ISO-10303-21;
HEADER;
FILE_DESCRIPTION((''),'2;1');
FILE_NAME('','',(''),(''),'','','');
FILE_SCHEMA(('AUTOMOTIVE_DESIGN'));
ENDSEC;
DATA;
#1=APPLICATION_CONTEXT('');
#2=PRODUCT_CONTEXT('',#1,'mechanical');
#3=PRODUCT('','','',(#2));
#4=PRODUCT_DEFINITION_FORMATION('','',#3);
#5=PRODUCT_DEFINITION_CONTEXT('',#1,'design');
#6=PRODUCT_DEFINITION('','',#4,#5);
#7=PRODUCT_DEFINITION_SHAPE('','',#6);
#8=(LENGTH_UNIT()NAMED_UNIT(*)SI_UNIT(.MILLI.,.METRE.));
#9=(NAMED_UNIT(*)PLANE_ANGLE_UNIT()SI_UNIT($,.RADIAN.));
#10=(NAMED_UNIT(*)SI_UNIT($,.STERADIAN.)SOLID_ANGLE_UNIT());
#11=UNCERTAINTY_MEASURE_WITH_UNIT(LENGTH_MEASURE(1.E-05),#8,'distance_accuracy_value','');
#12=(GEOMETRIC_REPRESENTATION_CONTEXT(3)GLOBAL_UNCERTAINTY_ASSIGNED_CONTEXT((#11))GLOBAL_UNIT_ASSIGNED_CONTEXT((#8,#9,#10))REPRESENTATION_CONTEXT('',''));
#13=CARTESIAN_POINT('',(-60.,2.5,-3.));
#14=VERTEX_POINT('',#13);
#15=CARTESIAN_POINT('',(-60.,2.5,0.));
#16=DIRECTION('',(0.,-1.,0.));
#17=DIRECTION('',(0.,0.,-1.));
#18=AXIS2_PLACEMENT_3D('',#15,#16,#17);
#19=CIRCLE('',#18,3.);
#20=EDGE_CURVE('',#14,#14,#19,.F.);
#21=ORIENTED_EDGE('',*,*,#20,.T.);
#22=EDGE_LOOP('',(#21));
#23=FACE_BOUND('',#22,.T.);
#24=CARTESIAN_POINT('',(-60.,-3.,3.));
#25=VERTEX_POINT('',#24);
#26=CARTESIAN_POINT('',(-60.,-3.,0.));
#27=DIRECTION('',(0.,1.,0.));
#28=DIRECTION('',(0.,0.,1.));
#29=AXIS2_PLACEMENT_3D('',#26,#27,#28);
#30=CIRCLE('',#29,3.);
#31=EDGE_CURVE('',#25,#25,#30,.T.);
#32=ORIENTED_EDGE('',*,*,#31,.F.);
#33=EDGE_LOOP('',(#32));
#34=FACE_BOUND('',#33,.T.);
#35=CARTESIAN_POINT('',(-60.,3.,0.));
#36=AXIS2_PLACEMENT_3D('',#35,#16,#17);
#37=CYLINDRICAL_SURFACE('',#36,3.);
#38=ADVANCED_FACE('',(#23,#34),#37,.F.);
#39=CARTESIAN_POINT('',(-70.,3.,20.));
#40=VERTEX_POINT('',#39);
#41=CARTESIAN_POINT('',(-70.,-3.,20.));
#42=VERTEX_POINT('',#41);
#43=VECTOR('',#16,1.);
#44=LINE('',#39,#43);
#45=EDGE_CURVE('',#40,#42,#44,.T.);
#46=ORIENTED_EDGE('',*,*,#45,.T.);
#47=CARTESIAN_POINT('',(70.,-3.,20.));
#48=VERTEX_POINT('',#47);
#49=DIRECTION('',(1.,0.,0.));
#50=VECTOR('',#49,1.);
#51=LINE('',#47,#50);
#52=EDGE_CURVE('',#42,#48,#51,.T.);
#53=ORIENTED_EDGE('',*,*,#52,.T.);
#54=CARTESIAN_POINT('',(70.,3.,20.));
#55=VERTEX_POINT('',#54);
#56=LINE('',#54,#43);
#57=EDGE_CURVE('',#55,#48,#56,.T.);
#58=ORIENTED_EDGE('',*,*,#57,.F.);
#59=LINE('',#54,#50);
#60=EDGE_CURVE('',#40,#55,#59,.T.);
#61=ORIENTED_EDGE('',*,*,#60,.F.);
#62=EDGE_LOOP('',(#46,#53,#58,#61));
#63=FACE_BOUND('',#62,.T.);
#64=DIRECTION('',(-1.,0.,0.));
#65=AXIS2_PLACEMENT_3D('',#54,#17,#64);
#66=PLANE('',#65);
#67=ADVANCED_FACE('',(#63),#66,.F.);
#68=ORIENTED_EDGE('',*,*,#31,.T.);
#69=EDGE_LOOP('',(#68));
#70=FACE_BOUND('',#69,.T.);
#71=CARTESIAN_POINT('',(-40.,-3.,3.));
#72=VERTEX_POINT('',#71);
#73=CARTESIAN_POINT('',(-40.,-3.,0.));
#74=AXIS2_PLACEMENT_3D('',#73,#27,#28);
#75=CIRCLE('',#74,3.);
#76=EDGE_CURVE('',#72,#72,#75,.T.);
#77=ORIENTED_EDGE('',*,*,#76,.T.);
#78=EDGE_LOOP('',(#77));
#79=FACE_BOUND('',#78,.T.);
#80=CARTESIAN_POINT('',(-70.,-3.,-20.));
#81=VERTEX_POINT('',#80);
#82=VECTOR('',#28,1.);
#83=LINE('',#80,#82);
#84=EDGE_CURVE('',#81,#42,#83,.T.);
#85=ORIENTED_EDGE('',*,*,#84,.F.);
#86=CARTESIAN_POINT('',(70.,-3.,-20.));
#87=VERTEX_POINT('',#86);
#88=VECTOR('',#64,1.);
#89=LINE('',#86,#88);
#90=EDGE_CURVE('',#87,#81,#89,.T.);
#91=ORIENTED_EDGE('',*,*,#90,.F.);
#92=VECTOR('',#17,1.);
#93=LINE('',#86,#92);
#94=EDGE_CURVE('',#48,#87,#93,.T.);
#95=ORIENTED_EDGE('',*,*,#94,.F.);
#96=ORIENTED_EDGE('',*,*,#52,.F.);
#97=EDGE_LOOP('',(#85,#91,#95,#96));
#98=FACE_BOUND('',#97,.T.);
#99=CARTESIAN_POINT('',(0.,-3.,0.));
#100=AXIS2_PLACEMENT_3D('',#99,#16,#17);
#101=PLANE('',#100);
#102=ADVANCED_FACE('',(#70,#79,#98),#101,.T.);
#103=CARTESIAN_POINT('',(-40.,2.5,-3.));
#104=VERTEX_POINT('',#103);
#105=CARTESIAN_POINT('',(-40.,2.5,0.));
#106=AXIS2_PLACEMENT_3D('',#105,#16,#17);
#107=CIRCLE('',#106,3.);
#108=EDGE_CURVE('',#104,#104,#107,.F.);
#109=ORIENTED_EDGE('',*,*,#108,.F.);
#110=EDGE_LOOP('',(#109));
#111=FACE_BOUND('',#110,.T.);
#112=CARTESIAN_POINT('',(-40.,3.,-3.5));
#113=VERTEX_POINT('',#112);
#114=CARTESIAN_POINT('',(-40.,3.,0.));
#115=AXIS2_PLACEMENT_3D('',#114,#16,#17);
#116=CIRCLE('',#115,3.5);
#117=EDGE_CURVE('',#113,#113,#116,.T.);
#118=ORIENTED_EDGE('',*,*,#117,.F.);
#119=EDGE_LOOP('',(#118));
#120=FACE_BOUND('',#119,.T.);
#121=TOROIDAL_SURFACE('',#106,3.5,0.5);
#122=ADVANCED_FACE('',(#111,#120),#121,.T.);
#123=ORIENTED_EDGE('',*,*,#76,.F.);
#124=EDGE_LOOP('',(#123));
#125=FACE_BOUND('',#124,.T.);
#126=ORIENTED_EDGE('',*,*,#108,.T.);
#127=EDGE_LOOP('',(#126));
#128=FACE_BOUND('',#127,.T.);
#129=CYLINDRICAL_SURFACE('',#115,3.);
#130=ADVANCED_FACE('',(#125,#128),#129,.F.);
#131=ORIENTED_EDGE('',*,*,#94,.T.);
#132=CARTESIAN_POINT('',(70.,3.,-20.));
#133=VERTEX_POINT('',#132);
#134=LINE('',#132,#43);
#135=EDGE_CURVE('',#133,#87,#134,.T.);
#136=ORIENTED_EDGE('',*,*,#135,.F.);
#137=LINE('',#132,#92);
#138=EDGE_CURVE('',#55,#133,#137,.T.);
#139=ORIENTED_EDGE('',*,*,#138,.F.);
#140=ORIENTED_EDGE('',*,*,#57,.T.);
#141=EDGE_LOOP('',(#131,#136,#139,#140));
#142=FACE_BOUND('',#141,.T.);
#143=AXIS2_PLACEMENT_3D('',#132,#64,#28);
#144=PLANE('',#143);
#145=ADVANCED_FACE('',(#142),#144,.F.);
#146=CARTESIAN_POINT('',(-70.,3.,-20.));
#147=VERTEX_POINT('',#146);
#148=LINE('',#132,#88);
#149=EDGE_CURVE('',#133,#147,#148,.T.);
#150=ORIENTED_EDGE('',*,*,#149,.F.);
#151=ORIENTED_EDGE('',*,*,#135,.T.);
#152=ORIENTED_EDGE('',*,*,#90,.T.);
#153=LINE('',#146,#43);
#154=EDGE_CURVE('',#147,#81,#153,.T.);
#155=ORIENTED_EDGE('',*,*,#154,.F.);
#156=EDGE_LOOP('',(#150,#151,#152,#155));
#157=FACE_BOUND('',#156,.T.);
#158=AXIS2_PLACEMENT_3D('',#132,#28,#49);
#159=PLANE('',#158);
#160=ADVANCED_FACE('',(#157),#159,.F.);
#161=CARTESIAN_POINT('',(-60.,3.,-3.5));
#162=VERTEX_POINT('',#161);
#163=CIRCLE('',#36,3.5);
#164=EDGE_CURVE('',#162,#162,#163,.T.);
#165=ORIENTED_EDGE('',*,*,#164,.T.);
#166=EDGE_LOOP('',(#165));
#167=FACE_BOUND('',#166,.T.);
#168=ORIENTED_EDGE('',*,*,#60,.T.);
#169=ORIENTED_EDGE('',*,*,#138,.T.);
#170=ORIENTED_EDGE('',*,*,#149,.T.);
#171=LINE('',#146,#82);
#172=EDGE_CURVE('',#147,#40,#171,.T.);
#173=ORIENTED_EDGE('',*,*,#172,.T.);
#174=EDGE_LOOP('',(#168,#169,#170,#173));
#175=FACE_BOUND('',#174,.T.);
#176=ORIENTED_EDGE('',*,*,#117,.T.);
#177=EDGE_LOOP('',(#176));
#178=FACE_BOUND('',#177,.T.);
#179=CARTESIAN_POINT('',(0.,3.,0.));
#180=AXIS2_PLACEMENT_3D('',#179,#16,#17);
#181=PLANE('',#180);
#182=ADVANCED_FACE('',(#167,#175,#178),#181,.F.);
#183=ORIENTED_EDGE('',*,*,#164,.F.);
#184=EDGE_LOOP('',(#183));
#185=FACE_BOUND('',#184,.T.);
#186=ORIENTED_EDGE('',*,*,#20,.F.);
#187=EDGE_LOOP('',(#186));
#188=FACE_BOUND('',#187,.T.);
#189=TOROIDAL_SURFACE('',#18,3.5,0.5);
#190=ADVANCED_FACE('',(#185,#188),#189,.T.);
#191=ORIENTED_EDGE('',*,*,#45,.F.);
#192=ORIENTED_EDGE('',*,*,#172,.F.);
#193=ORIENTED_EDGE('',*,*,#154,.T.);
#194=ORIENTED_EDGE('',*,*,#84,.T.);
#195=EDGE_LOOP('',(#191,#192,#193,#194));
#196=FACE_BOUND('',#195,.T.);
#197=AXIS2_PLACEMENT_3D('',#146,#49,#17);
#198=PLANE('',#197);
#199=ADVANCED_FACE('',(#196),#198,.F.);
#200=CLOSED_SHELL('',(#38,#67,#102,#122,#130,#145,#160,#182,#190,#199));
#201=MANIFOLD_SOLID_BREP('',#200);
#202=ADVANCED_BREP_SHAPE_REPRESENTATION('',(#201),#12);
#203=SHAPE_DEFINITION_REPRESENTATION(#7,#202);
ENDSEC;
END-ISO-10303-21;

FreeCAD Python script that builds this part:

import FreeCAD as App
import Part
import Sketcher
from FreeCAD import Vector
Q = App.Units.Quantity


def edges_at(feature, points):
    """Names of the edges that pass closest to the given points."""
    edges = feature.Shape.Edges
    near = lambda p: min(range(len(edges)), key=lambda i: edges[i].distToShape(Part.Vertex(*p))[0])
    return sorted({f"Edge{near(p) + 1}" for p in points})

doc = App.newDocument("Part")
body = doc.addObject("PartDesign::Body", "Body")

sketch1 = body.newObject("Sketcher::SketchObject", "Sketch")
sketch1.AttachmentSupport = (doc.getObject("XZ_Plane"), [""])
sketch1.MapMode = "FlatFace"
sketch1.addGeometry(Part.LineSegment(Vector(-70, -20, 0), Vector(-70, 20, 0)), False)
sketch1.addGeometry(Part.LineSegment(Vector(-70, 20, 0), Vector(70, 20, 0)), False)
sketch1.addGeometry(Part.LineSegment(Vector(70, 20, 0), Vector(70, -20, 0)), False)
sketch1.addGeometry(Part.LineSegment(Vector(70, -20, 0), Vector(-70, -20, 0)), False)
sketch1.addGeometry(Part.Circle(Vector(-60, 0, 0), Vector(0, 0, 1), 3), False)
sketch1.addGeometry(Part.Circle(Vector(-40, 0, 0), Vector(0, 0, 1), 3), False)
sketch1.addConstraint(Sketcher.Constraint("Coincident", 0, 2, 1, 1))
sketch1.addConstraint(Sketcher.Constraint("Coincident", 1, 2, 2, 1))
sketch1.addConstraint(Sketcher.Constraint("Coincident", 2, 2, 3, 1))
sketch1.addConstraint(Sketcher.Constraint("Coincident", 3, 2, 0, 1))
sketch1.addConstraint(Sketcher.Constraint("Vertical", 0))
sketch1.addConstraint(Sketcher.Constraint("Horizontal", 1))
sketch1.addConstraint(Sketcher.Constraint("Vertical", 2))
sketch1.addConstraint(Sketcher.Constraint("Horizontal", 3))
sketch1.addConstraint(Sketcher.Constraint("Equal", 4, 5))
sketch1.addConstraint(Sketcher.Constraint("Symmetric", 0, 2, 2, 2, -1, 1))
sketch1.addConstraint(Sketcher.Constraint("PointOnObject", 4, 3, -1))
sketch1.addConstraint(Sketcher.Constraint("PointOnObject", 5, 3, -1))
sketch1.addConstraint(Sketcher.Constraint("Diameter", 4, Q("6 mm")))
sketch1.addConstraint(Sketcher.Constraint("DistanceX", 1, 1, 1, 2, Q("140 mm")))
sketch1.addConstraint(Sketcher.Constraint("DistanceY", 0, 1, 0, 2, Q("40 mm")))
sketch1.addConstraint(Sketcher.Constraint("DistanceX", 4, 3, -1, 1, Q("60 mm")))
sketch1.addConstraint(Sketcher.Constraint("DistanceX", 5, 3, -1, 1, Q("40 mm")))
pad1 = body.newObject("PartDesign::Pad", "Pad")
pad1.Profile = sketch1
pad1.Length = 6
pad1.Midplane = True
doc.recompute()

fillet = body.newObject("PartDesign::Fillet", "Fillet")
fillet.Base = (pad1, edges_at(pad1, [(-40, 3, -3), (-60, 3, -3)]))
fillet.Radius = 0.5

doc.recompute()
